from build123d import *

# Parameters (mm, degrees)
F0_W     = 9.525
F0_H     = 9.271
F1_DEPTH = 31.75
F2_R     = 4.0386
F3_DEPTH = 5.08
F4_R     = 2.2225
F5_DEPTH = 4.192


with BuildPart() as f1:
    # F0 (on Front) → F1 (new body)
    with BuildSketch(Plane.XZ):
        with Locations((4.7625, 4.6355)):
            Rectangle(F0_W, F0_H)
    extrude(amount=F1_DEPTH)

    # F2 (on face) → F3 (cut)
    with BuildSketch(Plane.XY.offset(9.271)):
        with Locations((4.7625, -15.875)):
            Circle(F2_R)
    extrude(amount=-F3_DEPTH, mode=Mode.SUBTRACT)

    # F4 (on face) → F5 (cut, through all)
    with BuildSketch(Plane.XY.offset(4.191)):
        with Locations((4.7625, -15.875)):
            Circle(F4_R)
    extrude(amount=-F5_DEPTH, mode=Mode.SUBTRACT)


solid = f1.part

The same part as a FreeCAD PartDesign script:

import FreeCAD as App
import Part
import Sketcher

V = App.Vector
Q = App.Units.Quantity

doc = App.newDocument("Part")
body = doc.addObject("PartDesign::Body", "Body")

# Sketch on XZ plane
sketch1 = body.newObject("Sketcher::SketchObject", "Sketch")
sketch1.AttachmentSupport = (doc.getObject("XZ_Plane"), [""])
sketch1.MapMode = "FlatFace"
sketch1.addGeometry([
    Part.LineSegment(V(0, 9, 0), V(0, 0, 0)),
    Part.LineSegment(V(0, 0, 0), V(10, 0, 0)),
    Part.LineSegment(V(10, 0, 0), V(10, 9, 0)),
    Part.LineSegment(V(10, 9, 0), V(0, 9, 0)),
], False)
sketch1.addConstraint([
    Sketcher.Constraint("Coincident", 0, 2, 1, 1),
    Sketcher.Constraint("Coincident", 1, 2, 2, 1),
    Sketcher.Constraint("Coincident", 2, 2, 3, 1),
    Sketcher.Constraint("Coincident", 3, 2, 0, 1),
    Sketcher.Constraint("Vertical", 0),
    Sketcher.Constraint("Horizontal", 1),
    Sketcher.Constraint("Vertical", 2),
    Sketcher.Constraint("Horizontal", 3),
    Sketcher.Constraint("Coincident", 0, 2, -1, 1),
    Sketcher.Constraint("DistanceX", 1, 1, 1, 2, Q("0.375 in")),
    Sketcher.Constraint("DistanceY", 0, 2, 0, 1, Q("0.365 in")),
])
pad1 = body.newObject("PartDesign::Pad", "Pad")
pad1.Profile = sketch1
pad1.Length = Q("1.25 in")

# Sketch on XY plane
sketch2 = body.newObject("Sketcher::SketchObject", "Sketch001")
sketch2.AttachmentSupport = (doc.getObject("XY_Plane"), [""])
sketch2.MapMode = "FlatFace"
sketch2.AttachmentOffset = App.Placement(V(0, 0, 0.365 * 25.4), App.Rotation())
sketch2.addGeometry(Part.Circle(V(4.8, -15.9, 0), V(0, 0, 1), 4), False)
sketch2.addConstraint([
    Sketcher.Constraint("Diameter", 0, Q("0.318 in")),
    Sketcher.Constraint("DistanceX", -1, 1, 0, 3, Q("0.1875 in")),
    Sketcher.Constraint("DistanceY", 0, 3, -1, 1, Q("0.625 in")),
])
pocket1 = body.newObject("PartDesign::Pocket", "Pocket")
pocket1.Profile = sketch2
pocket1.Length = Q("0.2 in")

# Sketch on XY plane
sketch3 = body.newObject("Sketcher::SketchObject", "Sketch002")
sketch3.AttachmentSupport = (doc.getObject("XY_Plane"), [""])
sketch3.MapMode = "FlatFace"
sketch3.AttachmentOffset = App.Placement(V(0, 0, 0.165 * 25.4), App.Rotation())
sketch3.addGeometry(Part.Circle(V(4.8, -15.9, 0), V(0, 0, 1), 2.2), False)
sketch3.addConstraint([
    Sketcher.Constraint("Diameter", 0, Q("0.175 in")),
    Sketcher.Constraint("DistanceX", -1, 1, 0, 3, Q("0.1875 in")),
    Sketcher.Constraint("DistanceY", 0, 3, -1, 1, Q("0.625 in")),
])
pocket2 = body.newObject("PartDesign::Pocket", "Pocket001")
pocket2.Profile = sketch3
pocket2.Type = "ThroughAll"

doc.recompute()
